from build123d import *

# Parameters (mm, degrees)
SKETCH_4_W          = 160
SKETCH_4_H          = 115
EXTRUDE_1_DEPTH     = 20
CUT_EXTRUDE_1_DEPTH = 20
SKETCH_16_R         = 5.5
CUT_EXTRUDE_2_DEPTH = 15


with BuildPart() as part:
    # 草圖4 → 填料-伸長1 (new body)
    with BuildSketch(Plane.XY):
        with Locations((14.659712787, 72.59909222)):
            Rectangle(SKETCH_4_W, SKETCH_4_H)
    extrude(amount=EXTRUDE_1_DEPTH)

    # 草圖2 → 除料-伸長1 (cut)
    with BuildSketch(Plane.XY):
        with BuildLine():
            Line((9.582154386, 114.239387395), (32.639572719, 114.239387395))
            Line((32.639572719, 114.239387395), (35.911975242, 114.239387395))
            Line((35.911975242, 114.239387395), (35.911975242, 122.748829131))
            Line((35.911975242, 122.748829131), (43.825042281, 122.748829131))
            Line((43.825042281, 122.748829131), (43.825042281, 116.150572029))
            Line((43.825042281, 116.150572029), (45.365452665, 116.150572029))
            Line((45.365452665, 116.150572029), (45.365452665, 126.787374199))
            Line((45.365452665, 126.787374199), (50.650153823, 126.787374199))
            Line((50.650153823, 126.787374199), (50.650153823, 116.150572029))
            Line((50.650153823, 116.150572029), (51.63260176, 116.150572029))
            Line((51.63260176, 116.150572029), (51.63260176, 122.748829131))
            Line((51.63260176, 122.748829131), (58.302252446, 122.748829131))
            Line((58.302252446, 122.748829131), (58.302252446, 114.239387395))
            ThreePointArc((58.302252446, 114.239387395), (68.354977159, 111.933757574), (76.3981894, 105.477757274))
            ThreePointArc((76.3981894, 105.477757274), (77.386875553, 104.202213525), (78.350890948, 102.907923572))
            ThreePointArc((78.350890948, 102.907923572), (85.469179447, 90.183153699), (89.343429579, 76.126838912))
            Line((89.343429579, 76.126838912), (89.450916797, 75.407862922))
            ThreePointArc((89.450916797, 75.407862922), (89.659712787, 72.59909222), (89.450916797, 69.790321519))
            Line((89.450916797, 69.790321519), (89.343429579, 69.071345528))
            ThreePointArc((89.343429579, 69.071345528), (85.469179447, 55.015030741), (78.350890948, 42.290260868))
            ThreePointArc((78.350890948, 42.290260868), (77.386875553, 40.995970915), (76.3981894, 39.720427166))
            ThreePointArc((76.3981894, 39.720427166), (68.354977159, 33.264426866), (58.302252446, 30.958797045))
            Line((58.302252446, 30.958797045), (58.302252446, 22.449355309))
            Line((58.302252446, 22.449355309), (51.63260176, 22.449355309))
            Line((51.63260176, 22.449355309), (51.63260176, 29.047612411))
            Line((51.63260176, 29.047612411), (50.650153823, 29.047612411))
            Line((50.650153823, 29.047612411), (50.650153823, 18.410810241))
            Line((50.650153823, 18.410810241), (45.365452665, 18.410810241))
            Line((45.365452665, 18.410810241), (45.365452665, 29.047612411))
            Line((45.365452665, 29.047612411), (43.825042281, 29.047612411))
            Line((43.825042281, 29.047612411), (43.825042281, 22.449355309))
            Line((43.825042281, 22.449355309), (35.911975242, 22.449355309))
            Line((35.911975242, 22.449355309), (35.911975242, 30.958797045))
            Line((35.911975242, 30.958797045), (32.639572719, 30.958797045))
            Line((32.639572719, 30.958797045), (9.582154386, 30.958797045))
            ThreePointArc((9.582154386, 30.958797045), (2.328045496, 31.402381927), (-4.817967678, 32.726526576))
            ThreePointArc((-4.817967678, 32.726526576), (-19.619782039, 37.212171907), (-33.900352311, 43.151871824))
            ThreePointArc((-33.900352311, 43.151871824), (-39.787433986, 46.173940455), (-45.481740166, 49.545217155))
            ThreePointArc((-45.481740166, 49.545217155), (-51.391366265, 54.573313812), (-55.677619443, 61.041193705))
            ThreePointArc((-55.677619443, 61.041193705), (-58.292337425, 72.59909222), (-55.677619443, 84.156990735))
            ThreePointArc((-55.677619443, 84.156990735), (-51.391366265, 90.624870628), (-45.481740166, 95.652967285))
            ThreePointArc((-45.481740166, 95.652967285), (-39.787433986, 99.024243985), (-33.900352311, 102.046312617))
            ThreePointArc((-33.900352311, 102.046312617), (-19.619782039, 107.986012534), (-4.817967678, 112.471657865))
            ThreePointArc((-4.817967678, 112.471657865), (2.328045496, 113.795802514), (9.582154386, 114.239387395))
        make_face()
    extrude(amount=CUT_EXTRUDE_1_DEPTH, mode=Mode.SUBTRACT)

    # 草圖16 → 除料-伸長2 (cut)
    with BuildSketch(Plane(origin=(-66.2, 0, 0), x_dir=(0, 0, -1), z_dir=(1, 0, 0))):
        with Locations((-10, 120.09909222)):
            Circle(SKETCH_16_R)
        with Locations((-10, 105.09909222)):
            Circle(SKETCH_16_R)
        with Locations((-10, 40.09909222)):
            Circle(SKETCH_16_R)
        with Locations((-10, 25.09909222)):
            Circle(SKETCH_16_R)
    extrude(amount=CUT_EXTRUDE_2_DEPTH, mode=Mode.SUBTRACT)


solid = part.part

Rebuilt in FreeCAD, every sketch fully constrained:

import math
import FreeCAD as App
import Part
import Sketcher

V = App.Vector
Q = App.Units.Quantity

doc = App.newDocument("Part")
body = doc.addObject("PartDesign::Body", "Body")

# Sketch on XY plane
sketch1 = doc.addObject("Sketcher::SketchObject", "Sketch")
body.addObject(sketch1)
sketch1.AttachmentSupport = (doc.XY_Plane, [""])
sketch1.MapMode = "FlatFace"
sketch1.addGeometry(Part.LineSegment(V(-65.340287, 130.099092, 0), V(-65.340287, 15.099092, 0)), False)
sketch1.addGeometry(Part.LineSegment(V(-65.340287, 15.099092, 0), V(94.659713, 15.099092, 0)), False)
sketch1.addGeometry(Part.LineSegment(V(94.659713, 15.099092, 0), V(94.659713, 130.099092, 0)), False)
sketch1.addGeometry(Part.LineSegment(V(94.659713, 130.099092, 0), V(-65.340287, 130.099092, 0)), False)
sketch1.addConstraint(Sketcher.Constraint("Coincident", 0, 2, 1, 1))
sketch1.addConstraint(Sketcher.Constraint("Coincident", 1, 2, 2, 1))
sketch1.addConstraint(Sketcher.Constraint("Coincident", 2, 2, 3, 1))
sketch1.addConstraint(Sketcher.Constraint("Coincident", 3, 2, 0, 1))
sketch1.addConstraint(Sketcher.Constraint("Vertical", 0))
sketch1.addConstraint(Sketcher.Constraint("Horizontal", 1))
sketch1.addConstraint(Sketcher.Constraint("Vertical", 2))
sketch1.addConstraint(Sketcher.Constraint("Horizontal", 3))
sketch1.addConstraint(Sketcher.Constraint("DistanceX", 1, 1, 1, 2, Q("160 mm")))
sketch1.addConstraint(Sketcher.Constraint("DistanceY", 0, 2, 0, 1, Q("115 mm")))
sketch1.addConstraint(Sketcher.Constraint("DistanceX", 0, 2, -1, 1, Q("65.340287 mm")))
sketch1.addConstraint(Sketcher.Constraint("DistanceY", -1, 1, 0, 2, Q("15.099092 mm")))
pad1 = doc.addObject("PartDesign::Pad", "Pad")
body.addObject(pad1)
pad1.Profile = sketch1
pad1.Length = 20

# Sketch on XY plane
sketch2 = doc.addObject("Sketcher::SketchObject", "Sketch001")
body.addObject(sketch2)
sketch2.AttachmentSupport = (doc.XY_Plane, [""])
sketch2.MapMode = "FlatFace"
sketch2.addGeometry(Part.LineSegment(V(35.911975, 114.239387, 0), V(9.582154, 114.239387, 0)), False)
sketch2.addGeometry(Part.ArcOfCircle(Part.Circle(V(9.582154, 54.703022, 0), V(0, 0, 1), 59.536366), math.radians(90), math.radians(103.996996)), False)
sketch2.addGeometry(Part.ArcOfCircle(Part.Circle(V(32.639573, -37.795889, 0), V(0, 0, 1), 154.865758), math.radians(103.996996), math.radians(115.446109)), False)
sketch2.addGeometry(Part.ArcOfCircle(Part.Circle(V(13.269137, 2.91357, 0), V(0, 0, 1), 109.782792), math.radians(115.446109), math.radians(122.354465)), False)
sketch2.addGeometry(Part.ArcOfCircle(Part.Circle(V(-30.633225, 72.214299, 0), V(0, 0, 1), 27.746163), math.radians(122.354465), math.radians(154.505352)), False)
sketch2.addGeometry(Part.ArcOfCircle(Part.Circle(V(-31.440155, 72.599092, 0), V(0, 0, 1), 26.852182), math.radians(154.505352), math.radians(205.494648)), False)
sketch2.addGeometry(Part.ArcOfCircle(Part.Circle(V(-30.633225, 72.983886, 0), V(0, 0, 1), 27.746163), math.radians(-154.505352), math.radians(-122.354465)), False)
sketch2.addGeometry(Part.ArcOfCircle(Part.Circle(V(13.269137, 142.284614, 0), V(0, 0, 1), 109.782791), math.radians(-122.354465), math.radians(-115.446109)), False)
sketch2.addGeometry(Part.ArcOfCircle(Part.Circle(V(32.639573, 182.994074, 0), V(0, 0, 1), 154.865758), math.radians(-115.446109), math.radians(-103.996996)), False)
sketch2.addGeometry(Part.ArcOfCircle(Part.Circle(V(9.582154, 90.495163, 0), V(0, 0, 1), 59.536366), math.radians(-103.996996), math.radians(-90)), False)
sketch2.addGeometry(Part.LineSegment(V(9.582154, 30.958797, 0), V(35.911975, 30.958797, 0)), False)
sketch2.addGeometry(Part.LineSegment(V(35.911975, 30.958797, 0), V(35.911975, 22.449355, 0)), False)
sketch2.addGeometry(Part.LineSegment(V(35.911975, 22.449355, 0), V(43.825042, 22.449355, 0)), False)
sketch2.addGeometry(Part.LineSegment(V(43.825042, 22.449355, 0), V(43.825042, 29.047612, 0)), False)
sketch2.addGeometry(Part.LineSegment(V(43.825042, 29.047612, 0), V(45.365453, 29.047612, 0)), False)
sketch2.addGeometry(Part.LineSegment(V(45.365453, 29.047612, 0), V(45.365453, 18.41081, 0)), False)
sketch2.addGeometry(Part.LineSegment(V(45.365453, 18.41081, 0), V(50.650154, 18.41081, 0)), False)
sketch2.addGeometry(Part.LineSegment(V(50.650154, 18.41081, 0), V(50.650154, 29.047612, 0)), False)
sketch2.addGeometry(Part.LineSegment(V(50.650154, 29.047612, 0), V(51.632602, 29.047612, 0)), False)
sketch2.addGeometry(Part.LineSegment(V(51.632602, 29.047612, 0), V(51.632602, 22.449355, 0)), False)
sketch2.addGeometry(Part.LineSegment(V(51.632602, 22.449355, 0), V(58.302252, 22.449355, 0)), False)
sketch2.addGeometry(Part.LineSegment(V(58.302252, 22.449355, 0), V(58.302252, 30.958797, 0)), False)
sketch2.addGeometry(Part.ArcOfCircle(Part.Circle(V(58.302252, 54.026941, 0), V(0, 0, 1), 23.068144), math.radians(-90), math.radians(-38.329636)), False)
sketch2.addGeometry(Part.ArcOfCircle(Part.Circle(V(10.458916, 91.85153, 0), V(0, 0, 1), 84.057359), math.radians(-38.329636), math.radians(-36.129514)), False)
sketch2.addGeometry(Part.ArcOfCircle(Part.Circle(V(29.385512, 78.03508, 0), V(0, 0, 1), 60.624256), math.radians(-36.129514), math.radians(-8.50277)), False)
sketch2.addGeometry(Part.LineSegment(V(89.34343, 69.071346, 0), V(89.450917, 69.790322, 0)), False)
sketch2.addGeometry(Part.ArcOfCircle(Part.Circle(V(70.663207, 72.599092, 0), V(0, 0, 1), 18.996506), math.radians(-8.50277), math.radians(8.50277)), False)
sketch2.addGeometry(Part.LineSegment(V(89.450917, 75.407863, 0), V(89.34343, 76.126839, 0)), False)
sketch2.addGeometry(Part.ArcOfCircle(Part.Circle(V(29.385512, 67.163105, 0), V(0, 0, 1), 60.624256), math.radians(8.50277), math.radians(36.129514)), False)
sketch2.addGeometry(Part.ArcOfCircle(Part.Circle(V(10.458916, 53.346655, 0), V(0, 0, 1), 84.057359), math.radians(36.129514), math.radians(38.329636)), False)
sketch2.addGeometry(Part.ArcOfCircle(Part.Circle(V(58.302252, 91.171243, 0), V(0, 0, 1), 23.068144), math.radians(38.329636), math.radians(90)), False)
sketch2.addGeometry(Part.LineSegment(V(58.302252, 114.239387, 0), V(58.302252, 122.748829, 0)), False)
sketch2.addGeometry(Part.LineSegment(V(58.302252, 122.748829, 0), V(51.632602, 122.748829, 0)), False)
sketch2.addGeometry(Part.LineSegment(V(51.632602, 122.748829, 0), V(51.632602, 116.150572, 0)), False)
sketch2.addGeometry(Part.LineSegment(V(51.632602, 116.150572, 0), V(50.650154, 116.150572, 0)), False)
sketch2.addGeometry(Part.LineSegment(V(50.650154, 116.150572, 0), V(50.650154, 126.787374, 0)), False)
sketch2.addGeometry(Part.LineSegment(V(50.650154, 126.787374, 0), V(45.365453, 126.787374, 0)), False)
sketch2.addGeometry(Part.LineSegment(V(45.365453, 126.787374, 0), V(45.365453, 116.150572, 0)), False)
sketch2.addGeometry(Part.LineSegment(V(45.365453, 116.150572, 0), V(43.825042, 116.150572, 0)), False)
sketch2.addGeometry(Part.LineSegment(V(43.825042, 116.150572, 0), V(43.825042, 122.748829, 0)), False)
sketch2.addGeometry(Part.LineSegment(V(43.825042, 122.748829, 0), V(35.911975, 122.748829, 0)), False)
sketch2.addGeometry(Part.LineSegment(V(35.911975, 122.748829, 0), V(35.911975, 114.239387, 0)), False)
sketch2.addConstraint(Sketcher.Constraint("Tangent", 0, 2, 1, 1))
sketch2.addConstraint(Sketcher.Constraint("Tangent", 1, 2, 2, 1))
sketch2.addConstraint(Sketcher.Constraint("Tangent", 2, 2, 3, 1))
sketch2.addConstraint(Sketcher.Constraint("Tangent", 3, 2, 4, 1))
sketch2.addConstraint(Sketcher.Constraint("Tangent", 4, 2, 5, 1))
sketch2.addConstraint(Sketcher.Constraint("Tangent", 5, 2, 6, 1))
sketch2.addConstraint(Sketcher.Constraint("Tangent", 6, 2, 7, 1))
sketch2.addConstraint(Sketcher.Constraint("Tangent", 7, 2, 8, 1))
sketch2.addConstraint(Sketcher.Constraint("Tangent", 8, 2, 9, 1))
sketch2.addConstraint(Sketcher.Constraint("Tangent", 9, 2, 10, 1))
sketch2.addConstraint(Sketcher.Constraint("Coincident", 10, 2, 11, 1))
sketch2.addConstraint(Sketcher.Constraint("Coincident", 11, 2, 12, 1))
sketch2.addConstraint(Sketcher.Constraint("Coincident", 12, 2, 13, 1))
sketch2.addConstraint(Sketcher.Constraint("Coincident", 13, 2, 14, 1))
sketch2.addConstraint(Sketcher.Constraint("Coincident", 14, 2, 15, 1))
sketch2.addConstraint(Sketcher.Constraint("Coincident", 15, 2, 16, 1))
sketch2.addConstraint(Sketcher.Constraint("Coincident", 16, 2, 17, 1))
sketch2.addConstraint(Sketcher.Constraint("Coincident", 17, 2, 18, 1))
sketch2.addConstraint(Sketcher.Constraint("Coincident", 18, 2, 19, 1))
sketch2.addConstraint(Sketcher.Constraint("Coincident", 19, 2, 20, 1))
sketch2.addConstraint(Sketcher.Constraint("Coincident", 20, 2, 21, 1))
sketch2.addConstraint(Sketcher.Constraint("Coincident", 21, 2, 22, 1))
sketch2.addConstraint(Sketcher.Constraint("Tangent", 22, 2, 23, 1))
sketch2.addConstraint(Sketcher.Constraint("Tangent", 23, 2, 24, 1))
sketch2.addConstraint(Sketcher.Constraint("Tangent", 24, 2, 25, 1))
sketch2.addConstraint(Sketcher.Constraint("Tangent", 25, 2, 26, 1))
sketch2.addConstraint(Sketcher.Constraint("Tangent", 26, 2, 27, 1))
sketch2.addConstraint(Sketcher.Constraint("Tangent", 27, 2, 28, 1))
sketch2.addConstraint(Sketcher.Constraint("Tangent", 28, 2, 29, 1))
sketch2.addConstraint(Sketcher.Constraint("Tangent", 29, 2, 30, 1))
sketch2.addConstraint(Sketcher.Constraint("Coincident", 30, 2, 31, 1))
sketch2.addConstraint(Sketcher.Constraint("Coincident", 31, 2, 32, 1))
sketch2.addConstraint(Sketcher.Constraint("Coincident", 32, 2, 33, 1))
sketch2.addConstraint(Sketcher.Constraint("Coincident", 33, 2, 34, 1))
sketch2.addConstraint(Sketcher.Constraint("Coincident", 34, 2, 35, 1))
sketch2.addConstraint(Sketcher.Constraint("Coincident", 35, 2, 36, 1))
sketch2.addConstraint(Sketcher.Constraint("Coincident", 36, 2, 37, 1))
sketch2.addConstraint(Sketcher.Constraint("Coincident", 37, 2, 38, 1))
sketch2.addConstraint(Sketcher.Constraint("Coincident", 38, 2, 39, 1))
sketch2.addConstraint(Sketcher.Constraint("Coincident", 39, 2, 40, 1))
sketch2.addConstraint(Sketcher.Constraint("Coincident", 40, 2, 41, 1))
sketch2.addConstraint(Sketcher.Constraint("Coincident", 41, 2, 0, 1))
sketch2.addConstraint(Sketcher.Constraint("Horizontal", 0))
sketch2.addConstraint(Sketcher.Constraint("Horizontal", 10))
sketch2.addConstraint(Sketcher.Constraint("Vertical", 11))
sketch2.addConstraint(Sketcher.Constraint("Horizontal", 12))
sketch2.addConstraint(Sketcher.Constraint("Vertical", 13))
sketch2.addConstraint(Sketcher.Constraint("Horizontal", 14))
sketch2.addConstraint(Sketcher.Constraint("Vertical", 15))
sketch2.addConstraint(Sketcher.Constraint("Horizontal", 16))
sketch2.addConstraint(Sketcher.Constraint("Vertical", 17))
sketch2.addConstraint(Sketcher.Constraint("Horizontal", 18))
sketch2.addConstraint(Sketcher.Constraint("Vertical", 19))
sketch2.addConstraint(Sketcher.Constraint("Horizontal", 20))
sketch2.addConstraint(Sketcher.Constraint("Vertical", 21))
sketch2.addConstraint(Sketcher.Constraint("Vertical", 31))
sketch2.addConstraint(Sketcher.Constraint("Horizontal", 32))
sketch2.addConstraint(Sketcher.Constraint("Vertical", 33))
sketch2.addConstraint(Sketcher.Constraint("Horizontal", 34))
sketch2.addConstraint(Sketcher.Constraint("Vertical", 35))
sketch2.addConstraint(Sketcher.Constraint("Horizontal", 36))
sketch2.addConstraint(Sketcher.Constraint("Vertical", 37))
sketch2.addConstraint(Sketcher.Constraint("Horizontal", 38))
sketch2.addConstraint(Sketcher.Constraint("Vertical", 39))
sketch2.addConstraint(Sketcher.Constraint("Horizontal", 40))
sketch2.addConstraint(Sketcher.Constraint("Vertical", 41))
sketch2.addConstraint(Sketcher.Constraint("Equal", 4, 6))
sketch2.addConstraint(Sketcher.Constraint("Equal", 3, 7))
sketch2.addConstraint(Sketcher.Constraint("Equal", 2, 8))
sketch2.addConstraint(Sketcher.Constraint("Equal", 1, 9))
sketch2.addConstraint(Sketcher.Constraint("Equal", 24, 28))
sketch2.addConstraint(Sketcher.Constraint("Equal", 23, 29))
sketch2.addConstraint(Sketcher.Constraint("Equal", 22, 30))
sketch2.addConstraint(Sketcher.Constraint("Horizontal", 5, 3, 26, 3))
sketch2.addConstraint(Sketcher.Constraint("Horizontal", 14, 2, 17, 2))
sketch2.addConstraint(Sketcher.Constraint("Horizontal", 12, 2, 19, 2))
sketch2.addConstraint(Sketcher.Constraint("Horizontal", 10, 2, 21, 2))
sketch2.addConstraint(Sketcher.Constraint("Horizontal", 0, 2, 30, 2))
sketch2.addConstraint(Sketcher.Constraint("Horizontal", 34, 2, 37, 2))
sketch2.addConstraint(Sketcher.Constraint("Horizontal", 32, 2, 39, 2))
sketch2.addConstraint(Sketcher.Constraint("Vertical", 4, 3, 6, 3))
sketch2.addConstraint(Sketcher.Constraint("Vertical", 3, 3, 7, 3))
sketch2.addConstraint(Sketcher.Constraint("Vertical", 2, 3, 8, 3))
sketch2.addConstraint(Sketcher.Constraint("Vertical", 1, 3, 9, 3))
sketch2.addConstraint(Sketcher.Constraint("Vertical", 24, 3, 28, 3))
sketch2.addConstraint(Sketcher.Constraint("Vertical", 23, 3, 29, 3))
sketch2.addConstraint(Sketcher.Constraint("Vertical", 22, 3, 30, 3))
sketch2.addConstraint(Sketcher.Constraint("Vertical", 30, 3, 20, 2))
sketch2.addConstraint(Sketcher.Constraint("Vertical", 21, 2, 30, 2))
sketch2.addConstraint(Sketcher.Constraint("Vertical", 19, 2, 32, 2))
sketch2.addConstraint(Sketcher.Constraint("Vertical", 17, 2, 34, 2))
sketch2.addConstraint(Sketcher.Constraint("Vertical", 15, 2, 36, 2))
sketch2.addConstraint(Sketcher.Constraint("Vertical", 13, 2, 38, 2))
sketch2.addConstraint(Sketcher.Constraint("Vertical", 11, 2, 40, 2))
sketch2.addConstraint(Sketcher.Constraint("Equal", 21, 31))
sketch2.addConstraint(Sketcher.Constraint("Equal", 19, 33))
sketch2.addConstraint(Sketcher.Constraint("Equal", 17, 35))
sketch2.addConstraint(Sketcher.Constraint("Radius", 2, Q("154.865758 mm")))
sketch2.addConstraint(Sketcher.Constraint("Radius", 3, Q("109.782792 mm")))
sketch2.addConstraint(Sketcher.Constraint("Radius", 23, Q("84.057359 mm")))
sketch2.addConstraint(Sketcher.Constraint("DistanceX", 16, 1, 16, 2, Q("5.284701 mm")))
sketch2.addConstraint(Sketcher.Constraint("Radius", 1, Q("59.536366 mm")))
sketch2.addConstraint(Sketcher.Constraint("Radius", 4, Q("27.746163 mm")))
sketch2.addConstraint(Sketcher.Constraint("Radius", 5, Q("26.852182 mm")))
sketch2.addConstraint(Sketcher.Constraint("Radius", 22, Q("23.068144 mm")))
sketch2.addConstraint(Sketcher.Constraint("Radius", 24, Q("60.624256 mm")))
sketch2.addConstraint(Sketcher.Constraint("Radius", 26, Q("18.996506 mm")))
sketch2.addConstraint(Sketcher.Constraint("DistanceX", 0, 2, 0, 1, Q("26.329821 mm")))
sketch2.addConstraint(Sketcher.Constraint("DistanceX", 14, 1, 14, 2, Q("1.54041 mm")))
sketch2.addConstraint(Sketcher.Constraint("DistanceX", 20, 1, 20, 2, Q("6.669651 mm")))
sketch2.addConstraint(Sketcher.Constraint("DistanceY", 11, 2, 11, 1, Q("8.509442 mm")))
sketch2.addConstraint(Sketcher.Constraint("DistanceY", -1, 1, 4, 3, Q("72.214299 mm")))
sketch2.addConstraint(Sketcher.Constraint("DistanceX", -1, 1, 18, 2, Q("51.632602 mm")))
sketch2.addConstraint(Sketcher.Constraint("DistanceX", 1, 3, 22, 3, Q("48.720098 mm")))
sketch2.addConstraint(Sketcher.Constraint("DistanceY", 22, 3, 30, 3, Q("37.144302 mm")))
sketch2.addConstraint(Sketcher.Constraint("DistanceY", 5, 3, 4, 2, Q("11.557899 mm")))
sketch2.addConstraint(Sketcher.Constraint("DistanceY", 11, 2, 29, 3, Q("30.897299 mm")))
sketch2.addConstraint(Sketcher.Constraint("DistanceX", 14, 2, 22, 3, Q("12.9368 mm")))
sketch2.addConstraint(Sketcher.Constraint("DistanceX", 22, 2, 23, 2, Q("1.952702 mm")))
sketch2.addConstraint(Sketcher.Constraint("DistanceY", 13, 1, 13, 2, Q("6.598257 mm")))
sketch2.addConstraint(Sketcher.Constraint("DistanceY", 15, 2, 15, 1, Q("10.636802 mm")))
sketch2.addConstraint(Sketcher.Constraint("DistanceY", 2, 3, -1, 1, Q("37.795889 mm")))
sketch2.addConstraint(Sketcher.Constraint("DistanceY", -1, 1, 3, 3, Q("2.91357 mm")))
sketch2.addConstraint(Sketcher.Constraint("DistanceX", -1, 1, 24, 2, Q("89.34343 mm")))
pocket1 = doc.addObject("PartDesign::Pocket", "Pocket")
body.addObject(pocket1)
pocket1.Profile = sketch2
pocket1.Length = 20
pocket1.Reversed = True

# Sketch on YZ plane
sketch3 = doc.addObject("Sketcher::SketchObject", "Sketch002")
body.addObject(sketch3)
sketch3.AttachmentSupport = (doc.YZ_Plane, [""])
sketch3.MapMode = "FlatFace"
sketch3.AttachmentOffset = App.Placement(V(0, 0, -66.2), App.Rotation())
sketch3.addGeometry(Part.Circle(V(120.099092, 10, 0), V(0, 0, 1), 5.5), False)
sketch3.addGeometry(Part.Circle(V(105.099092, 10, 0), V(0, 0, 1), 5.5), False)
sketch3.addGeometry(Part.Circle(V(40.099092, 10, 0), V(0, 0, 1), 5.5), False)
sketch3.addGeometry(Part.Circle(V(25.099092, 10, 0), V(0, 0, 1), 5.5), False)
sketch3.addConstraint(Sketcher.Constraint("Equal", 0, 1))
sketch3.addConstraint(Sketcher.Constraint("Equal", 1, 2))
sketch3.addConstraint(Sketcher.Constraint("Equal", 2, 3))
sketch3.addConstraint(Sketcher.Constraint("Horizontal", 0, 3, 1, 3))
sketch3.addConstraint(Sketcher.Constraint("Horizontal", 1, 3, 2, 3))
sketch3.addConstraint(Sketcher.Constraint("Horizontal", 2, 3, 3, 3))
sketch3.addConstraint(Sketcher.Constraint("Diameter", 0, Q("11 mm")))
sketch3.addConstraint(Sketcher.Constraint("DistanceY", -1, 1, 0, 3, Q("10 mm")))
sketch3.addConstraint(Sketcher.Constraint("DistanceX", 1, 3, 0, 3, Q("15 mm")))
sketch3.addConstraint(Sketcher.Constraint("DistanceX", 2, 3, 1, 3, Q("65 mm")))
sketch3.addConstraint(Sketcher.Constraint("DistanceX", 3, 3, 2, 3, Q("15 mm")))
sketch3.addConstraint(Sketcher.Constraint("DistanceX", -1, 1, 0, 3, Q("120.099092 mm")))
pocket2 = doc.addObject("PartDesign::Pocket", "Pocket001")
body.addObject(pocket2)
pocket2.Profile = sketch3
pocket2.Length = 15
pocket2.Reversed = True

doc.recompute()
